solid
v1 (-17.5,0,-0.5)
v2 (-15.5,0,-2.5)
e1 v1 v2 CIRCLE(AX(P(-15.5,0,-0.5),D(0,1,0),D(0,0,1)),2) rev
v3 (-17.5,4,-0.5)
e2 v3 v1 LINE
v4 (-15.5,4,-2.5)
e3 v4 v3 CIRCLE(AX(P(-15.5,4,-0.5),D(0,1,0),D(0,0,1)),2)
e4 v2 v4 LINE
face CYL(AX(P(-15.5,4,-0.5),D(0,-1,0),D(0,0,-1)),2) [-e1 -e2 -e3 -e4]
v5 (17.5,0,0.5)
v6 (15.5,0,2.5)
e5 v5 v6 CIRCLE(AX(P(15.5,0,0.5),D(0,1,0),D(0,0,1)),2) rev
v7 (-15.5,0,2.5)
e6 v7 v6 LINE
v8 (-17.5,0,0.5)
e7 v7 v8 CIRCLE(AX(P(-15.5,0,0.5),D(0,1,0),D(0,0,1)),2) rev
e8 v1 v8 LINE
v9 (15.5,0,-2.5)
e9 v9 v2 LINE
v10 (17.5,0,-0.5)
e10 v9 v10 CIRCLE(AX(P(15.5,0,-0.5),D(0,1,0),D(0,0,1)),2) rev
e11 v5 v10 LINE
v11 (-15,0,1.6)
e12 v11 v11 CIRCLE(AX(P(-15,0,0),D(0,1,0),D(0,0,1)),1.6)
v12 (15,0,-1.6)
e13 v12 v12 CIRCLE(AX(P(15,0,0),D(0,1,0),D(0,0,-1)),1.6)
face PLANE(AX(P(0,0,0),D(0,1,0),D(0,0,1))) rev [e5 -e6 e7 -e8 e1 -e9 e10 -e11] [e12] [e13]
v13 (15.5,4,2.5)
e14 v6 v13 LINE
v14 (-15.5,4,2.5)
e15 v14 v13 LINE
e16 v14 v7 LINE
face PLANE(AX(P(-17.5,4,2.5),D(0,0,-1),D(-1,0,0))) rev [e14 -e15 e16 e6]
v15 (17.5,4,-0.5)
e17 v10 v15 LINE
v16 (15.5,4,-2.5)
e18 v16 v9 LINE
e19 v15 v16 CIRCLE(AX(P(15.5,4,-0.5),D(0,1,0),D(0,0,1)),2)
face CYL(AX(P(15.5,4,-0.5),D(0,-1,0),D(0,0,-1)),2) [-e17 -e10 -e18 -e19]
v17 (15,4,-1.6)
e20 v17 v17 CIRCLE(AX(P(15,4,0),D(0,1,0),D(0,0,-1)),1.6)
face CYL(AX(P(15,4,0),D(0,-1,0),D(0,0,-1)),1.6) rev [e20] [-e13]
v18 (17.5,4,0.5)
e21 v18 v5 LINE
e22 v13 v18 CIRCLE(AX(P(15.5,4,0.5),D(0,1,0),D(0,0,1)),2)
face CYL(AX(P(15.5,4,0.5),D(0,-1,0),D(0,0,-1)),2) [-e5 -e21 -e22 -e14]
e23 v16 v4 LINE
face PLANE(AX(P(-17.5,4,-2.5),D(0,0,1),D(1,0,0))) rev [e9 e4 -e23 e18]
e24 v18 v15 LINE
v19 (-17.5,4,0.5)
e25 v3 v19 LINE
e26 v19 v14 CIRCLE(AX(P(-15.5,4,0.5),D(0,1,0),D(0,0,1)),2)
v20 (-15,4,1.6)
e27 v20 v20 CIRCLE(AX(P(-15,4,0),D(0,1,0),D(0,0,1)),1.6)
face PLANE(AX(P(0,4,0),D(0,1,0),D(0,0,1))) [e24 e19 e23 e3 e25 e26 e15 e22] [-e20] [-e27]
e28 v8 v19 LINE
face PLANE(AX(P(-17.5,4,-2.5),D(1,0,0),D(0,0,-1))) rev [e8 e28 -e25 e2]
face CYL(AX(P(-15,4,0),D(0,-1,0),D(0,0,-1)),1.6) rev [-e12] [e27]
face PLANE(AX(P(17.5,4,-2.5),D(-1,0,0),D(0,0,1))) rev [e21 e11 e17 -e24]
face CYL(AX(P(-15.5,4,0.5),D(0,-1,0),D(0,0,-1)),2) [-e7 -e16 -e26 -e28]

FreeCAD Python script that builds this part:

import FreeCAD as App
import Part
import Sketcher
Q = App.Units.Quantity


def edges_at(feature, points):
    """Names of the edges that pass closest to the given points."""
    edges = feature.Shape.Edges
    near = lambda p: min(range(len(edges)), key=lambda i: edges[i].distToShape(Part.Vertex(*p))[0])
    return sorted({f"Edge{near(p) + 1}" for p in points})


def add_polygon(sketch, points):
    """Adds a closed chain of lines whose ends are joined by coincident constraints."""
    first, n = sketch.GeometryCount, len(points)
    for a, b in zip(points, points[1:] + points[:1]):
        sketch.addGeometry(Part.LineSegment(App.Vector(*a, 0), App.Vector(*b, 0)), False)
    for i in range(n):
        sketch.addConstraint(Sketcher.Constraint("Coincident", first + i, 2, first + (i + 1) % n, 1))

doc = App.newDocument("Part")
params = doc.addObject("Spreadsheet::Sheet", "Params")
for row, (alias, value) in enumerate([
    ("sketch1_diameter", "3.2 mm"),
    ("sketch1_width", "35 mm"),
    ("sketch1_height", "5 mm"),
    ("pad1_length", "4 mm"),
    ("fillet_radius", "2 mm"),
], start=1):
    params.set(f"A{row}", alias)
    params.set(f"B{row}", "=" + value)
    params.setAlias(f"B{row}", alias)

body = doc.addObject("PartDesign::Body", "Body")

# Sketch on XZ plane
sketch1 = body.newObject("Sketcher::SketchObject", "Sketch")
sketch1.AttachmentSupport = (doc.getObject("XZ_Plane"), [""])
sketch1.MapMode = "FlatFace"
add_polygon(sketch1, [(-17.5, -2.5), (-17.5, 2.5), (17.5, 2.5), (17.5, -2.5)])  # lines 0-3
sketch1.addGeometry(Part.Circle(App.Vector(-15, 0, 0), App.Vector(0, 0, 1), 1.6), False)  # 4
sketch1.addGeometry(Part.Circle(App.Vector(15, 0, 0), App.Vector(0, 0, 1), 1.6), False)  # 5
sketch1.addConstraint([
    Sketcher.Constraint("Vertical", 0),
    Sketcher.Constraint("Horizontal", 1),
    Sketcher.Constraint("Vertical", 2),
    Sketcher.Constraint("Horizontal", 3),
    Sketcher.Constraint("Equal", 4, 5),
    Sketcher.Constraint("Symmetric", 4, 3, 5, 3, -1, 1),
    Sketcher.Constraint("Symmetric", 0, 2, 2, 2, -1, 1),
    Sketcher.Constraint("PointOnObject", 4, 3, -1),
    Sketcher.Constraint("Diameter", 4, Q("3.2 mm")),
    Sketcher.Constraint("DistanceX", 1, 1, 1, 2, Q("35 mm")),
    Sketcher.Constraint("DistanceY", 0, 1, 0, 2, Q("5 mm")),
    Sketcher.Constraint("DistanceX", 4, 3, -1, 1, Q("15 mm")),
])
sketch1.setExpression("Constraints[12]", "Params.sketch1_diameter")
sketch1.setExpression("Constraints[13]", "Params.sketch1_width")
sketch1.setExpression("Constraints[14]", "Params.sketch1_height")
pad1 = body.newObject("PartDesign::Pad", "Pad")
pad1.Profile = sketch1
pad1.setExpression("Length", "Params.pad1_length")
pad1.Reversed = True
doc.recompute()

fillet = body.newObject("PartDesign::Fillet", "Fillet")
fillet.Base = (pad1, edges_at(pad1, [
    (17.5, 2, 2.5),
    (-17.5, 2, 2.5),
    (-17.5, 2, -2.5),
    (17.5, 2, -2.5),
]))
fillet.setExpression("Radius", "Params.fillet_radius")

doc.recompute()
